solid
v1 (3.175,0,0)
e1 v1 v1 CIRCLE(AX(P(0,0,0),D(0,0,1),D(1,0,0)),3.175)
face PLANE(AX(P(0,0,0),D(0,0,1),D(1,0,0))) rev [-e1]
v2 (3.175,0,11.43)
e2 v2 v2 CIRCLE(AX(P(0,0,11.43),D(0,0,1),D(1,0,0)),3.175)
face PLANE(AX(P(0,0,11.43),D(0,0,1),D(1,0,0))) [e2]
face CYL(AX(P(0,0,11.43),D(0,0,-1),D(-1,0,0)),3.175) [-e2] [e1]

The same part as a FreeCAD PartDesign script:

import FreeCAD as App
import Part
import Sketcher
from FreeCAD import Vector
Q = App.Units.Quantity

doc = App.newDocument("Part")
body = doc.addObject("PartDesign::Body", "Body")

sketch1 = body.newObject("Sketcher::SketchObject", "Sketch")
sketch1.AttachmentSupport = (doc.getObject("XY_Plane"), [""])
sketch1.MapMode = "FlatFace"
sketch1.addGeometry(Part.Circle(Vector(0, 0, 0), Vector(0, 0, 1), 3.2), False)
sketch1.addConstraint([
    Sketcher.Constraint("Coincident", 0, 3, -1, 1),
    Sketcher.Constraint("Diameter", 0, Q("0.25 in")),
])
pad1 = body.newObject("PartDesign::Pad", "Pad")
pad1.Profile = sketch1
pad1.Length = Q("0.45 in")

doc.recompute()
